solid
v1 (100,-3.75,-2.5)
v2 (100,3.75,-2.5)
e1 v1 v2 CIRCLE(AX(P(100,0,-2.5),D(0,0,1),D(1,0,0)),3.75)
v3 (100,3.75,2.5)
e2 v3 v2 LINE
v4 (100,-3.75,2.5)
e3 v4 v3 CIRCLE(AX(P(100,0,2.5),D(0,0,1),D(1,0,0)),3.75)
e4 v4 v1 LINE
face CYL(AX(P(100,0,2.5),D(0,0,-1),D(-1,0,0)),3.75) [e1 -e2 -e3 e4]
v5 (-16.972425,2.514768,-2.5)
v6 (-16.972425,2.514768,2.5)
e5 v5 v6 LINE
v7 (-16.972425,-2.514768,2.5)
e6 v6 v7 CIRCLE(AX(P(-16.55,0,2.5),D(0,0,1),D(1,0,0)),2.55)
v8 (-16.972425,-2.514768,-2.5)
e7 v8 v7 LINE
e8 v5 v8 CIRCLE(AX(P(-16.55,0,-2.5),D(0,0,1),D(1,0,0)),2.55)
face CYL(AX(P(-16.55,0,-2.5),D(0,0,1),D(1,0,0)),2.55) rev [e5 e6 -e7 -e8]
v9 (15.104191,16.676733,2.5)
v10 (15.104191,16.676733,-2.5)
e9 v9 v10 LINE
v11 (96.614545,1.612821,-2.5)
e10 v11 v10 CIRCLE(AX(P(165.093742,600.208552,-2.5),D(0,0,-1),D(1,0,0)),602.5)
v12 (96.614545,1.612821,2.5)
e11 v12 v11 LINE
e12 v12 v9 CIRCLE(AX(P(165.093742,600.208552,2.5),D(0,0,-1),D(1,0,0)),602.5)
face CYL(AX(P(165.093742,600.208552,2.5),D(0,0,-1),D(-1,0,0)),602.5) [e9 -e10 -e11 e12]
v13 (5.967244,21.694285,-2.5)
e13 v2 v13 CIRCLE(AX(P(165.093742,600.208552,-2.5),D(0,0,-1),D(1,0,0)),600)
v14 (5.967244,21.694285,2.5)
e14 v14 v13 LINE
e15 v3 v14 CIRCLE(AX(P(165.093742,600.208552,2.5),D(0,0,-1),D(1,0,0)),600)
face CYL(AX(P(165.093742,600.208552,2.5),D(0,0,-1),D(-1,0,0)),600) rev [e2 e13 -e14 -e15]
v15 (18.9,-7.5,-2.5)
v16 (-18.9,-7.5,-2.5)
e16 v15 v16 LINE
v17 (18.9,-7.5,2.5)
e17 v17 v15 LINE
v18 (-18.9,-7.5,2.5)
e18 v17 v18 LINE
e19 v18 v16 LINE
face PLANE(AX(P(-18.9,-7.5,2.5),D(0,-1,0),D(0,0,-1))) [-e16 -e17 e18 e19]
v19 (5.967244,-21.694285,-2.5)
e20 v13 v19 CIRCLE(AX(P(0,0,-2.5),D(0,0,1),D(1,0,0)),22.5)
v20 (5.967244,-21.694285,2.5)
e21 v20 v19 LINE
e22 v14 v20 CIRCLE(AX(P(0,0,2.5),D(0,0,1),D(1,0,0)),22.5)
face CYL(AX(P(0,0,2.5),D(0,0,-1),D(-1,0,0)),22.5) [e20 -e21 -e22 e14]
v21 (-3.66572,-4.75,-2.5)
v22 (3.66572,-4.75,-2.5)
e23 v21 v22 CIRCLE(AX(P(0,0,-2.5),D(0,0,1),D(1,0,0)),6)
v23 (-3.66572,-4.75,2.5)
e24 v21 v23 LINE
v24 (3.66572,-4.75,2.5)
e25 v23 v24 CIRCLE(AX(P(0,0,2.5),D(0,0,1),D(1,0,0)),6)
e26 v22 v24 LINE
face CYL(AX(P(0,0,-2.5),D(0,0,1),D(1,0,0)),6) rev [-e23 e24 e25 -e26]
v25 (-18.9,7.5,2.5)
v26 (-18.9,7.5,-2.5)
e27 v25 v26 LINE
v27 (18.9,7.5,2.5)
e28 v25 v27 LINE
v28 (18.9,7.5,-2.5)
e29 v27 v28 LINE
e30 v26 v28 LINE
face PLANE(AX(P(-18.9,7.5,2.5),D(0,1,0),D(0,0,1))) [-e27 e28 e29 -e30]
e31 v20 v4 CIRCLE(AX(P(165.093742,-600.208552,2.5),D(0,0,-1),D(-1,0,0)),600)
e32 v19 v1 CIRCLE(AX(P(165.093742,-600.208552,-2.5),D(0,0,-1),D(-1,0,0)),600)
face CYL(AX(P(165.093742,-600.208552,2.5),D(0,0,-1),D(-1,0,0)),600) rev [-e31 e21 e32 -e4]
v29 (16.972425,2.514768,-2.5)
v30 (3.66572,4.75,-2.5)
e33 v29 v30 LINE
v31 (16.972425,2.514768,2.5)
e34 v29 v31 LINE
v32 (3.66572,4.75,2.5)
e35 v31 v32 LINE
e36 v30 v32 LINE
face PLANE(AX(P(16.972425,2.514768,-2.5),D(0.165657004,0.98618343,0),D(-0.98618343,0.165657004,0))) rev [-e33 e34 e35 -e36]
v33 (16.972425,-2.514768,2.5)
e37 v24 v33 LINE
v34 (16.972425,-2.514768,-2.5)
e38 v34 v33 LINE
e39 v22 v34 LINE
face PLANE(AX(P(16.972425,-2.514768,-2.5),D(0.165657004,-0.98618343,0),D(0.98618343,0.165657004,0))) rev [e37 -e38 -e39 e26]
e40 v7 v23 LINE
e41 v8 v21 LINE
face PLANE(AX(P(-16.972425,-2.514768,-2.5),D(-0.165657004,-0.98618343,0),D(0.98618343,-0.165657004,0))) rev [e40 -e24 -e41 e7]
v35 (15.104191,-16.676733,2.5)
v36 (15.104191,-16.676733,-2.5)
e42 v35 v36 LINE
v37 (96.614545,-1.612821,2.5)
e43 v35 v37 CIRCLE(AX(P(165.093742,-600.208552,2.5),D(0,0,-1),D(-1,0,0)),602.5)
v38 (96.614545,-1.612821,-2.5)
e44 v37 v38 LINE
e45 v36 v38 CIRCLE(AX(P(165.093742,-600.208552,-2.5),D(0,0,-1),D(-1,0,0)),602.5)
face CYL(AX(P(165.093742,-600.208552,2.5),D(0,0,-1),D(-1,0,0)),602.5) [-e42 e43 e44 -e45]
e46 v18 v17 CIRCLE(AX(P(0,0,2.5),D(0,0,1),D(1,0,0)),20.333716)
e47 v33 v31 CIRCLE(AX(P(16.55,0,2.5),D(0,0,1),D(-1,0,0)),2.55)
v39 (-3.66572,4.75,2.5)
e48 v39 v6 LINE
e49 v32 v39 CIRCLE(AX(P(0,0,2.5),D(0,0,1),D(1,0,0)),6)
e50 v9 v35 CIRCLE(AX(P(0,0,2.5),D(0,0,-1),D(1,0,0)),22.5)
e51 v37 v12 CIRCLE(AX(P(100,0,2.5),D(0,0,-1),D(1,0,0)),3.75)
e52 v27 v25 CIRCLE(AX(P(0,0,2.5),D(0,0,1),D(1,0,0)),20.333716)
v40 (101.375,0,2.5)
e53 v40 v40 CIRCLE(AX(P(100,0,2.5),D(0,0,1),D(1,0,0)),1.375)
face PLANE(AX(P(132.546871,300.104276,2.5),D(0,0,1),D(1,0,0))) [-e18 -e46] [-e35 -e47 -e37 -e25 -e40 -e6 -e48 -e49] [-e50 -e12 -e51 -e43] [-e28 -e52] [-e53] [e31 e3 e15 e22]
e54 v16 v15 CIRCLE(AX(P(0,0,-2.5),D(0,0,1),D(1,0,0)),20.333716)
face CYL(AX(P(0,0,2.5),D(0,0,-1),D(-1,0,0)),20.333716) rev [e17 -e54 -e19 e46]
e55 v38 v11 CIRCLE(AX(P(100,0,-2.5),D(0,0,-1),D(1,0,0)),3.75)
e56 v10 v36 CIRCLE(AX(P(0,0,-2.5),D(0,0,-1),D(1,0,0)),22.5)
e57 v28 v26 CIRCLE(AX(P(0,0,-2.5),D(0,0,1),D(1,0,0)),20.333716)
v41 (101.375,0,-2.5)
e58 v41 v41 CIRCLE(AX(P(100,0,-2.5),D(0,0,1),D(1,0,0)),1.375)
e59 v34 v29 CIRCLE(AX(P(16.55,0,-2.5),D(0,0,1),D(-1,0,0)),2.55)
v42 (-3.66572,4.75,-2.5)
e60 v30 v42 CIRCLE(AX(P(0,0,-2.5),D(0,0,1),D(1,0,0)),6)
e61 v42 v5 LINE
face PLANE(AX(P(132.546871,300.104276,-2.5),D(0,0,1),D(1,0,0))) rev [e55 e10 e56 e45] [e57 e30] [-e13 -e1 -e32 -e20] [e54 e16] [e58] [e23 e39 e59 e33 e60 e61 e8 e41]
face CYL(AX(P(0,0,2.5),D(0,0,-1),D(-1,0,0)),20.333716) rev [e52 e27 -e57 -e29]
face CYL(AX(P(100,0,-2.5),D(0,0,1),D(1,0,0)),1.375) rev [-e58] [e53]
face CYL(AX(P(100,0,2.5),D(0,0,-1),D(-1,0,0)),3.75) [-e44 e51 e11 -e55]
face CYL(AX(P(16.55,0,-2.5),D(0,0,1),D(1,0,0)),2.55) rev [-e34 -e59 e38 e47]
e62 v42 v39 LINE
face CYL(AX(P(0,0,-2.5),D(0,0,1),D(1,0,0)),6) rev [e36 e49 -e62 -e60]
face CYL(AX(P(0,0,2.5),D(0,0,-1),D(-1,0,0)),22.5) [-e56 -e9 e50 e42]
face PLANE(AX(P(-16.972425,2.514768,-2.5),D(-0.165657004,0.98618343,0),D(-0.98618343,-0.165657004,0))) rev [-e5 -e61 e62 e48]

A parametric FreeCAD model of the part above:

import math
import FreeCAD as App
import Part
import Sketcher
from FreeCAD import Vector
Q = App.Units.Quantity

doc = App.newDocument("Part")
body = doc.addObject("PartDesign::Body", "Body")

# Sketch on XY plane
sketch1 = body.newObject("Sketcher::SketchObject", "Sketch")
sketch1.AttachmentSupport = (doc.getObject("XY_Plane"), [""])
sketch1.MapMode = "FlatFace"
sketch1.addGeometry([
    Part.ArcOfCircle(Part.Circle(Vector(0, 0, 0), Vector(0, 0, 1), 22.5), math.radians(75), math.radians(285)),  # 0
    Part.ArcOfCircle(Part.Circle(Vector(165.1, -600.2, 0), Vector(0, 0, 1), 600), math.radians(96.23), math.radians(105.38)),  # 1
    Part.ArcOfCircle(Part.Circle(Vector(100, 0, 0), Vector(0, 0, 1), 3.8), math.radians(-90), math.radians(90)),  # 2
    Part.ArcOfCircle(Part.Circle(Vector(165.1, 600.2, 0), Vector(0, 0, 1), 600), math.radians(-105.38), math.radians(-96.23)),  # 3
    Part.ArcOfCircle(Part.Circle(Vector(0, 0, 0), Vector(0, 0, 1), 20.3), math.radians(-158), math.radians(-22)),  # 4
    Part.LineSegment(Vector(-18.9, -7.5, 0), Vector(18.9, -7.5, 0)),  # 5
    Part.LineSegment(Vector(18.9, 7.5, 0), Vector(-18.9, 7.5, 0)),  # 6
    Part.ArcOfCircle(Part.Circle(Vector(0, 0, 0), Vector(0, 0, 1), 20.3), math.radians(22), math.radians(158)),  # 7
    Part.ArcOfCircle(Part.Circle(Vector(0, 0, 0), Vector(0, 0, 1), 22.5), math.radians(-48), math.radians(48)),  # 8
    Part.ArcOfCircle(Part.Circle(Vector(165.1, 600.2, 0), Vector(0, 0, 1), 602.5), math.radians(-104.42), math.radians(-96.53)),  # 9
    Part.ArcOfCircle(Part.Circle(Vector(100, 0, 0), Vector(0, 0, 1), 3.7), math.radians(155), math.radians(205)),  # 10
    Part.ArcOfCircle(Part.Circle(Vector(165.1, -600.2, 0), Vector(0, 0, 1), 602.5), math.radians(96.53), math.radians(104.42)),  # 11
], False)
sketch1.addConstraint([
    Sketcher.Constraint("Tangent", 0, 2, 1, 2),
    Sketcher.Constraint("Coincident", 1, 1, 2, 1),
    Sketcher.Constraint("Coincident", 2, 2, 3, 2),
    Sketcher.Constraint("Tangent", 3, 1, 0, 1),
    Sketcher.Constraint("Coincident", 4, 1, 5, 1),
    Sketcher.Constraint("Coincident", 5, 2, 4, 2),
    Sketcher.Constraint("Coincident", 6, 1, 7, 1),
    Sketcher.Constraint("Coincident", 7, 2, 6, 2),
    Sketcher.Constraint("Coincident", 8, 2, 9, 1),
    Sketcher.Constraint("Coincident", 9, 2, 10, 1),
    Sketcher.Constraint("Coincident", 10, 2, 11, 1),
    Sketcher.Constraint("Coincident", 11, 2, 8, 1),
    Sketcher.Constraint("Horizontal", 5),
    Sketcher.Constraint("Horizontal", 6),
    Sketcher.Constraint("Coincident", 0, 3, -1, 1),
    Sketcher.Constraint("Coincident", 4, 3, -1, 1),
    Sketcher.Constraint("Coincident", 7, 3, -1, 1),
    Sketcher.Constraint("Coincident", 8, 3, -1, 1),
    Sketcher.Constraint("Coincident", 9, 3, 3, 3),
    Sketcher.Constraint("Coincident", 10, 3, 2, 3),
    Sketcher.Constraint("Coincident", 11, 3, 1, 3),
    Sketcher.Constraint("Equal", 1, 3),
    Sketcher.Constraint("Equal", 4, 7),
    Sketcher.Constraint("Equal", 0, 8),
    Sketcher.Constraint("Equal", 2, 10),
    Sketcher.Constraint("Equal", 9, 11),
    Sketcher.Constraint("Symmetric", 1, 1, 2, 2, -1),
    Sketcher.Constraint("Vertical", 10, 3, 1, 1),
    Sketcher.Constraint("Vertical", 5, 2, 6, 1),
    Sketcher.Constraint("Radius", 1, Q("600 mm")),
    Sketcher.Constraint("Radius", 0, Q("22.5 mm")),
    Sketcher.Constraint("Radius", 9, Q("602.5 mm")),
    Sketcher.Constraint("Radius", 2, Q("3.75 mm")),
    Sketcher.Constraint("DistanceX", 5, 1, 5, 2, Q("37.8 mm")),
    Sketcher.Constraint("DistanceX", -1, 1, 2, 3, Q("100 mm")),
    Sketcher.Constraint("DistanceY", 5, 2, 6, 1, Q("15 mm")),
])
pad1 = body.newObject("PartDesign::Pad", "Pad")
pad1.Profile = sketch1
pad1.Length = 5
pad1.Midplane = True

# Sketch on XY plane
sketch2 = body.newObject("Sketcher::SketchObject", "Sketch001")
sketch2.AttachmentSupport = (doc.getObject("XY_Plane"), [""])
sketch2.MapMode = "FlatFace"
sketch2.AttachmentOffset = App.Placement(Vector(0, 0, 2.5), App.Rotation())
sketch2.addGeometry([
    Part.LineSegment(Vector(-3.7, 4.8, 0), Vector(-17, 2.5, 0)),  # 0
    Part.ArcOfCircle(Part.Circle(Vector(-16.6, 0, 0), Vector(0, 0, 1), 2.5), math.radians(100), math.radians(260)),  # 1
    Part.LineSegment(Vector(-17, -2.5, 0), Vector(-3.7, -4.8, 0)),  # 2
    Part.ArcOfCircle(Part.Circle(Vector(0, 0, 0), Vector(0, 0, 1), 6), math.radians(-128), math.radians(-52)),  # 3
    Part.LineSegment(Vector(3.7, -4.8, 0), Vector(17, -2.5, 0)),  # 4
    Part.ArcOfCircle(Part.Circle(Vector(16.6, 0, 0), Vector(0, 0, 1), 2.5), math.radians(-80), math.radians(80)),  # 5
    Part.LineSegment(Vector(17, 2.5, 0), Vector(3.7, 4.8, 0)),  # 6
    Part.ArcOfCircle(Part.Circle(Vector(0, 0, 0), Vector(0, 0, 1), 6), math.radians(52), math.radians(128)),  # 7
], False)
sketch2.addConstraint([
    Sketcher.Constraint("Tangent", 0, 2, 1, 1),
    Sketcher.Constraint("Tangent", 1, 2, 2, 1),
    Sketcher.Constraint("Coincident", 2, 2, 3, 1),
    Sketcher.Constraint("Coincident", 3, 2, 4, 1),
    Sketcher.Constraint("Tangent", 4, 2, 5, 1),
    Sketcher.Constraint("Tangent", 5, 2, 6, 1),
    Sketcher.Constraint("Coincident", 6, 2, 7, 1),
    Sketcher.Constraint("Coincident", 7, 2, 0, 1),
    Sketcher.Constraint("Coincident", 3, 3, -1, 1),
    Sketcher.Constraint("Coincident", 7, 3, -1, 1),
    Sketcher.Constraint("Equal", 1, 5),
    Sketcher.Constraint("Equal", 3, 7),
    Sketcher.Constraint("Symmetric", 1, 3, 5, 3, -1, 1),
    Sketcher.Constraint("Symmetric", 1, 2, 4, 2, -2),
    Sketcher.Constraint("Parallel", 0, 4),
    Sketcher.Constraint("Parallel", 2, 6),
    Sketcher.Constraint("Radius", 3, Q("6 mm")),
    Sketcher.Constraint("Radius", 1, Q("2.55 mm")),
    Sketcher.Constraint("DistanceX", 1, 3, 5, 3, Q("33.1 mm")),
    Sketcher.Constraint("DistanceY", 3, 2, 6, 2, Q("9.5 mm")),
])
pocket1 = body.newObject("PartDesign::Pocket", "Pocket")
pocket1.Profile = sketch2
pocket1.Type = "ThroughAll"

# Sketch on XY plane
sketch3 = body.newObject("Sketcher::SketchObject", "Sketch002")
sketch3.AttachmentSupport = (doc.getObject("XY_Plane"), [""])
sketch3.MapMode = "FlatFace"
sketch3.addGeometry(Part.Circle(Vector(100, 0, 0), Vector(0, 0, 1), 1.4), False)
sketch3.addConstraint([
    Sketcher.Constraint("PointOnObject", 0, 3, -1),
    Sketcher.Constraint("Diameter", 0, Q("2.75 mm")),
    Sketcher.Constraint("DistanceX", -1, 1, 0, 3, Q("100 mm")),
])
pocket2 = body.newObject("PartDesign::Pocket", "Pocket001")
pocket2.Profile = sketch3
pocket2.Type = "ThroughAll"
pocket2.Midplane = True

doc.recompute()
